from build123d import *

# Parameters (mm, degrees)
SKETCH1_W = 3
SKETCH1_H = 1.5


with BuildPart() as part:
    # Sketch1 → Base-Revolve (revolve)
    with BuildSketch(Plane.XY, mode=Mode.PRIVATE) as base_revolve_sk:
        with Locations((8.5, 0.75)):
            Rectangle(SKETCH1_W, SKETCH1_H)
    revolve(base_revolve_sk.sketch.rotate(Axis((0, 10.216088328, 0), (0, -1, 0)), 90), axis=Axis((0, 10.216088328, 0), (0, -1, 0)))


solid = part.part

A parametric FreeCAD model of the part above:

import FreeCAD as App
import Part
import Sketcher
Q = App.Units.Quantity

doc = App.newDocument("Part")
body = doc.addObject("PartDesign::Body", "Body")

# Sketch on XY plane
sketch1 = doc.addObject("Sketcher::SketchObject", "Sketch")
body.addObject(sketch1)
sketch1.AttachmentSupport = (doc.XY_Plane, [""])
sketch1.MapMode = "FlatFace"
sketch1.addGeometry([
    Part.LineSegment(App.Vector(7, 1.5, 0), App.Vector(7, 0, 0)),
    Part.LineSegment(App.Vector(7, 0, 0), App.Vector(10, 0, 0)),
    Part.LineSegment(App.Vector(10, 0, 0), App.Vector(10, 1.5, 0)),
    Part.LineSegment(App.Vector(10, 1.5, 0), App.Vector(7, 1.5, 0)),
], False)
sketch1.addConstraint([
    Sketcher.Constraint("Coincident", 0, 2, 1, 1),
    Sketcher.Constraint("Coincident", 1, 2, 2, 1),
    Sketcher.Constraint("Coincident", 2, 2, 3, 1),
    Sketcher.Constraint("Coincident", 3, 2, 0, 1),
    Sketcher.Constraint("Vertical", 0),
    Sketcher.Constraint("Horizontal", 1),
    Sketcher.Constraint("Vertical", 2),
    Sketcher.Constraint("Horizontal", 3),
    Sketcher.Constraint("PointOnObject", 0, 2, -1),
    Sketcher.Constraint("DistanceX", 1, 1, 1, 2, Q("3 mm")),
    Sketcher.Constraint("DistanceY", 0, 2, 0, 1, Q("1.5 mm")),
    Sketcher.Constraint("DistanceX", -1, 1, 0, 2, Q("7 mm")),
])
revolution = doc.addObject("PartDesign::Revolution", "Revolution")
body.addObject(revolution)
revolution.Profile = sketch1
revolution.ReferenceAxis = (sketch1, ["V_Axis"])
revolution.Angle = 360

doc.recompute()
